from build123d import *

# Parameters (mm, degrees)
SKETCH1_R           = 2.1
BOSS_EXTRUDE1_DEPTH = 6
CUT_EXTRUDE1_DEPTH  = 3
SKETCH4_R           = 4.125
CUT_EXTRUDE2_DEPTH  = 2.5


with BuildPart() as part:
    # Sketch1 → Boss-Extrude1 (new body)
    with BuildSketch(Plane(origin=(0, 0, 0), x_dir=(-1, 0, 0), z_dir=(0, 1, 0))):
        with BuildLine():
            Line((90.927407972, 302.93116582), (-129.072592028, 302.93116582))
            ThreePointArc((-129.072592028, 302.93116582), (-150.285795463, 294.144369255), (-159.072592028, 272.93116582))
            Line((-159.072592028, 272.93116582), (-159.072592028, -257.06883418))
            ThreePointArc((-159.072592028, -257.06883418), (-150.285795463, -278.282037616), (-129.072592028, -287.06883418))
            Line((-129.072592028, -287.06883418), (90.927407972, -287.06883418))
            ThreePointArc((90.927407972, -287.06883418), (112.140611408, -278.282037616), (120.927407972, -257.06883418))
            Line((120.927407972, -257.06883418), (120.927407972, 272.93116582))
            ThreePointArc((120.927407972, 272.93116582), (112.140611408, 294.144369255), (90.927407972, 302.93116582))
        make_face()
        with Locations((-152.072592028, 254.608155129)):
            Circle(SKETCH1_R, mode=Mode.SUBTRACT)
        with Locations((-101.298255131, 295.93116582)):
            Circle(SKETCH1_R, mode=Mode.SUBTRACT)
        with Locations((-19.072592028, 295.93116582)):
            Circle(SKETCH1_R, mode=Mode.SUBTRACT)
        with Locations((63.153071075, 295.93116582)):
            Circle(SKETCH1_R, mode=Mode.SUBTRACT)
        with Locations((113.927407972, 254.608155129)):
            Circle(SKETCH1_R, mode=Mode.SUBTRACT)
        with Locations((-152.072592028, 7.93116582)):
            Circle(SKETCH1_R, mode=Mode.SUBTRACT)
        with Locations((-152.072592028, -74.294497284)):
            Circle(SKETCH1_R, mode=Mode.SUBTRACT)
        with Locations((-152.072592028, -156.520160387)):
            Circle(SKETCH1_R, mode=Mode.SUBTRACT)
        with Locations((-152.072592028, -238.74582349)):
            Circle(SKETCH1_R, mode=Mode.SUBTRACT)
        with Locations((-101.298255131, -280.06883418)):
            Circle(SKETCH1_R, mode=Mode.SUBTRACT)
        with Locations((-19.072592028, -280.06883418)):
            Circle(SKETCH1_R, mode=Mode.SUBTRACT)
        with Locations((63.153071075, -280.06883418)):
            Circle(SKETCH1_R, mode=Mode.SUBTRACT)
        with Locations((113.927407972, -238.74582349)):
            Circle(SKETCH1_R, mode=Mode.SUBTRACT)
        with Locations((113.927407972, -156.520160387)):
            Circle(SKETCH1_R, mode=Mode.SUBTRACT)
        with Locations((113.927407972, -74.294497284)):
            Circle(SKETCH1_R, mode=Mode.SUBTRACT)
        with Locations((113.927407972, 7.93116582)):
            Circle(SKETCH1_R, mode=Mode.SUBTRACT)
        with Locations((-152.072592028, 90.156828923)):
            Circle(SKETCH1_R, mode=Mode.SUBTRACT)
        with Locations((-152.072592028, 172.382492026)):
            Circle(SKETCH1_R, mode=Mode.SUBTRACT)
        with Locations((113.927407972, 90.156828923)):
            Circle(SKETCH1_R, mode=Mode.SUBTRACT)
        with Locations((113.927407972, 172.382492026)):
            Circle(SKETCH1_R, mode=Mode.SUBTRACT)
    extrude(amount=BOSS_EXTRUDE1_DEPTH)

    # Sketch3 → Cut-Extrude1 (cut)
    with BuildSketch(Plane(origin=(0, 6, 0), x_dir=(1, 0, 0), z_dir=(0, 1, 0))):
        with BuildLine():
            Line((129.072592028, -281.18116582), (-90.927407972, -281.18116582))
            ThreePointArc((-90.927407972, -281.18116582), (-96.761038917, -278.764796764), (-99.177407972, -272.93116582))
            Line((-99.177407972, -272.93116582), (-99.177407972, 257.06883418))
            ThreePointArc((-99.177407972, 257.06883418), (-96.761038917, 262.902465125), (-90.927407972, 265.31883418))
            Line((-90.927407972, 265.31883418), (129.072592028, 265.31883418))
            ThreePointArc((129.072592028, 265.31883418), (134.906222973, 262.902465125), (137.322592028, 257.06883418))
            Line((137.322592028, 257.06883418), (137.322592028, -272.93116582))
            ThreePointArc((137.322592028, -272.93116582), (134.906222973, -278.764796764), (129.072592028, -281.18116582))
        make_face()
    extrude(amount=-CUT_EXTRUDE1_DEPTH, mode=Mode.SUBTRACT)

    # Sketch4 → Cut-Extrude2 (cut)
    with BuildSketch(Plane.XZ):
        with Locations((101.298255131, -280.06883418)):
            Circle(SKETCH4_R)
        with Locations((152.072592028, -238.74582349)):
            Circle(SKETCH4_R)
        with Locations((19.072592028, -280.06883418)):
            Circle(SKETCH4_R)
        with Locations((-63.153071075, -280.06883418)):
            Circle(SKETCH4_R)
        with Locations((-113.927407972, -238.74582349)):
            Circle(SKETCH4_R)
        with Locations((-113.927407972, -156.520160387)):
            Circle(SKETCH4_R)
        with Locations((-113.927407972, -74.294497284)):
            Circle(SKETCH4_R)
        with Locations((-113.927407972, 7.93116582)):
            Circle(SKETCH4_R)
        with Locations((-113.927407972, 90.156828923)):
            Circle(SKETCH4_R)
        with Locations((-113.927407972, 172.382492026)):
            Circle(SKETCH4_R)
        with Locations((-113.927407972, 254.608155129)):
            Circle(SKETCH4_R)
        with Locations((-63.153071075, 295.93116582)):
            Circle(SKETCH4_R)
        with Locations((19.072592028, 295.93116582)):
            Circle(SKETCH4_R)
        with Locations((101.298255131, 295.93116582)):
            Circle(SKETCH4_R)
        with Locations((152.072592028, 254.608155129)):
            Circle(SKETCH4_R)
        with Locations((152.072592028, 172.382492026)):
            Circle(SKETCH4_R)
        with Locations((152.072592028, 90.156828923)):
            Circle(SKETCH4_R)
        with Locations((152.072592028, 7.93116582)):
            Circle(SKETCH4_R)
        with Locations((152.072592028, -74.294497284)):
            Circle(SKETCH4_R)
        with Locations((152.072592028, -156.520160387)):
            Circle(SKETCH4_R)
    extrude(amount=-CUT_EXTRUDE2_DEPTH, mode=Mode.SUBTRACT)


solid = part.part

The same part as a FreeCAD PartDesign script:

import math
import FreeCAD as App
import Part
import Sketcher
Q = App.Units.Quantity

doc = App.newDocument("Part")
params = doc.addObject("Spreadsheet::Sheet", "Params")
for row, (alias, value) in enumerate([
    ("sketch1_radius", "30 mm"),
    ("sketch1_diameter", "4.2 mm"),
    ("sketch1_width", "220 mm"),
    ("sketch1_height", "530 mm"),
    ("pad1_length", "6 mm"),
    ("sketch2_width", "220 mm"),
    ("sketch2_height", "530 mm"),
    ("sketch2_radius", "8.25 mm"),
    ("pocket1_length", "3 mm"),
    ("sketch3_diameter", "8.25 mm"),
    ("pocket2_length", "2.5 mm"),
], start=1):
    params.set(f"A{row}", alias)
    params.set(f"B{row}", "=" + value)
    params.setAlias(f"B{row}", alias)

body = doc.addObject("PartDesign::Body", "Body")

# Sketch on XZ plane
sketch1 = body.newObject("Sketcher::SketchObject", "Sketch")
sketch1.AttachmentSupport = (doc.getObject("XZ_Plane"), [""])
sketch1.MapMode = "FlatFace"
sketch1.addGeometry([
    Part.LineSegment(App.Vector(-90.9, 302.9, 0), App.Vector(129.1, 302.9, 0)),  # 0
    Part.ArcOfCircle(Part.Circle(App.Vector(129.1, 272.9, 0), App.Vector(0, 0, 1), 30), math.radians(0), math.radians(90)),  # 1
    Part.LineSegment(App.Vector(159.1, 272.9, 0), App.Vector(159.1, -257.1, 0)),  # 2
    Part.ArcOfCircle(Part.Circle(App.Vector(129.1, -257.1, 0), App.Vector(0, 0, 1), 30), math.radians(-90), math.radians(0)),  # 3
    Part.LineSegment(App.Vector(129.1, -287.1, 0), App.Vector(-90.9, -287.1, 0)),  # 4
    Part.ArcOfCircle(Part.Circle(App.Vector(-90.9, -257.1, 0), App.Vector(0, 0, 1), 30), math.radians(180), math.radians(270)),  # 5
    Part.LineSegment(App.Vector(-120.9, -257.1, 0), App.Vector(-120.9, 272.9, 0)),  # 6
    Part.ArcOfCircle(Part.Circle(App.Vector(-90.9, 272.9, 0), App.Vector(0, 0, 1), 30), math.radians(90), math.radians(180)),  # 7
    Part.Circle(App.Vector(152.1, -238.7, 0), App.Vector(0, 0, 1), 2.1),  # 8
    Part.Circle(App.Vector(101.3, -280.1, 0), App.Vector(0, 0, 1), 2.1),  # 9
    Part.Circle(App.Vector(152.1, -156.5, 0), App.Vector(0, 0, 1), 2.1),  # 10
    Part.Circle(App.Vector(152.1, -74.3, 0), App.Vector(0, 0, 1), 2.1),  # 11
    Part.Circle(App.Vector(19.1, -280.1, 0), App.Vector(0, 0, 1), 2.1),  # 12
    Part.Circle(App.Vector(-63.2, -280.1, 0), App.Vector(0, 0, 1), 2.1),  # 13
    Part.Circle(App.Vector(-113.9, -238.7, 0), App.Vector(0, 0, 1), 2.1),  # 14
    Part.Circle(App.Vector(-113.9, -156.5, 0), App.Vector(0, 0, 1), 2.1),  # 15
    Part.Circle(App.Vector(-113.9, -74.3, 0), App.Vector(0, 0, 1), 2.1),  # 16
    Part.Circle(App.Vector(152.1, 7.9, 0), App.Vector(0, 0, 1), 2.1),  # 17
    Part.Circle(App.Vector(152.1, 90.2, 0), App.Vector(0, 0, 1), 2.1),  # 18
    Part.Circle(App.Vector(152.1, 172.4, 0), App.Vector(0, 0, 1), 2.1),  # 19
    Part.Circle(App.Vector(152.1, 254.6, 0), App.Vector(0, 0, 1), 2.1),  # 20
    Part.Circle(App.Vector(101.3, 295.9, 0), App.Vector(0, 0, 1), 2.1),  # 21
    Part.Circle(App.Vector(-113.9, 7.9, 0), App.Vector(0, 0, 1), 2.1),  # 22
    Part.Circle(App.Vector(-113.9, 90.2, 0), App.Vector(0, 0, 1), 2.1),  # 23
    Part.Circle(App.Vector(19.1, 295.9, 0), App.Vector(0, 0, 1), 2.1),  # 24
    Part.Circle(App.Vector(-113.9, 172.4, 0), App.Vector(0, 0, 1), 2.1),  # 25
    Part.Circle(App.Vector(-63.2, 295.9, 0), App.Vector(0, 0, 1), 2.1),  # 26
    Part.Circle(App.Vector(-113.9, 254.6, 0), App.Vector(0, 0, 1), 2.1),  # 27
], False)
sketch1.addConstraint([
    Sketcher.Constraint("Tangent", 0, 2, 1, 2),
    Sketcher.Constraint("Tangent", 1, 1, 2, 1),
    Sketcher.Constraint("Tangent", 2, 2, 3, 2),
    Sketcher.Constraint("Tangent", 3, 1, 4, 1),
    Sketcher.Constraint("Tangent", 4, 2, 5, 2),
    Sketcher.Constraint("Tangent", 5, 1, 6, 1),
    Sketcher.Constraint("Tangent", 6, 2, 7, 2),
    Sketcher.Constraint("Tangent", 7, 1, 0, 1),
    Sketcher.Constraint("Horizontal", 0),
    Sketcher.Constraint("Vertical", 2),
    Sketcher.Constraint("Horizontal", 4),
    Sketcher.Constraint("Vertical", 6),
    Sketcher.Constraint("Equal", 1, 3),
    Sketcher.Constraint("Equal", 3, 5),
    Sketcher.Constraint("Equal", 5, 7),
    Sketcher.Constraint("Equal", 8, 9),
    Sketcher.Constraint("Equal", 9, 10),
    Sketcher.Constraint("Equal", 10, 11),
    Sketcher.Constraint("Equal", 11, 12),
    Sketcher.Constraint("Equal", 12, 13),
    Sketcher.Constraint("Equal", 13, 14),
    Sketcher.Constraint("Equal", 14, 15),
    Sketcher.Constraint("Equal", 15, 16),
    Sketcher.Constraint("Equal", 16, 17),
    Sketcher.Constraint("Equal", 17, 18),
    Sketcher.Constraint("Equal", 18, 19),
    Sketcher.Constraint("Equal", 19, 20),
    Sketcher.Constraint("Equal", 20, 21),
    Sketcher.Constraint("Equal", 21, 22),
    Sketcher.Constraint("Equal", 22, 23),
    Sketcher.Constraint("Equal", 23, 24),
    Sketcher.Constraint("Equal", 24, 25),
    Sketcher.Constraint("Equal", 25, 26),
    Sketcher.Constraint("Equal", 26, 27),
    Sketcher.Constraint("Horizontal", 9, 3, 12, 3),
    Sketcher.Constraint("Horizontal", 12, 3, 13, 3),
    Sketcher.Constraint("Horizontal", 8, 3, 14, 3),
    Sketcher.Constraint("Horizontal", 10, 3, 15, 3),
    Sketcher.Constraint("Horizontal", 11, 3, 16, 3),
    Sketcher.Constraint("Horizontal", 17, 3, 22, 3),
    Sketcher.Constraint("Horizontal", 18, 3, 23, 3),
    Sketcher.Constraint("Horizontal", 21, 3, 24, 3),
    Sketcher.Constraint("Horizontal", 19, 3, 25, 3),
    Sketcher.Constraint("Horizontal", 24, 3, 26, 3),
    Sketcher.Constraint("Horizontal", 20, 3, 27, 3),
    Sketcher.Constraint("Vertical", 8, 3, 10, 3),
    Sketcher.Constraint("Vertical", 10, 3, 11, 3),
    Sketcher.Constraint("Vertical", 14, 3, 15, 3),
    Sketcher.Constraint("Vertical", 15, 3, 16, 3),
    Sketcher.Constraint("Vertical", 11, 3, 17, 3),
    Sketcher.Constraint("Vertical", 17, 3, 18, 3),
    Sketcher.Constraint("Vertical", 18, 3, 19, 3),
    Sketcher.Constraint("Vertical", 19, 3, 20, 3),
    Sketcher.Constraint("Vertical", 9, 3, 21, 3),
    Sketcher.Constraint("Vertical", 16, 3, 22, 3),
    Sketcher.Constraint("Vertical", 22, 3, 23, 3),
    Sketcher.Constraint("Vertical", 12, 3, 24, 3),
    Sketcher.Constraint("Vertical", 23, 3, 25, 3),
    Sketcher.Constraint("Vertical", 13, 3, 26, 3),
    Sketcher.Constraint("Vertical", 25, 3, 27, 3),
    Sketcher.Constraint("Radius", 1, Q("30 mm")),
    Sketcher.Constraint("Diameter", 8, Q("4.2 mm")),
    Sketcher.Constraint("DistanceX", 0, 1, 0, 2, Q("220 mm")),
    Sketcher.Constraint("DistanceY", 2, 2, 2, 1, Q("530 mm")),
    Sketcher.Constraint("DistanceX", 3, 3, 8, 3, Q("23 mm")),
    Sketcher.Constraint("DistanceY", 9, 3, 3, 3, Q("23 mm")),
    Sketcher.Constraint("DistanceX", 12, 3, 3, 3, Q("110 mm")),
    Sketcher.Constraint("DistanceX", 14, 3, 5, 3, Q("23 mm")),
    Sketcher.Constraint("DistanceY", 17, 3, 1, 3, Q("265 mm")),
    Sketcher.Constraint("DistanceY", 1, 3, 21, 3, Q("23 mm")),
    Sketcher.Constraint("DistanceY", 10, 3, -1, 1, Q("156.52016 mm")),
    Sketcher.Constraint("DistanceX", 13, 3, -1, 1, Q("63.153071 mm")),
    Sketcher.Constraint("DistanceY", -1, 1, 18, 3, Q("90.156829 mm")),
    Sketcher.Constraint("DistanceY", 3, 3, 8, 3, Q("18.323011 mm")),
    Sketcher.Constraint("DistanceY", 11, 3, 19, 3, Q("246.676989 mm")),
    Sketcher.Constraint("DistanceY", 20, 3, 1, 3, Q("18.323011 mm")),
    Sketcher.Constraint("DistanceX", -1, 1, 1, 3, Q("129.072592 mm")),
    Sketcher.Constraint("DistanceY", -1, 1, 1, 3, Q("272.931166 mm")),
    Sketcher.Constraint("DistanceX", -1, 1, 9, 3, Q("101.298255 mm")),
    Sketcher.Constraint("DistanceY", 11, 3, -1, 1, Q("74.294497 mm")),
])
sketch1.setExpression("Constraints[60]", "Params.sketch1_radius")
sketch1.setExpression("Constraints[61]", "Params.sketch1_diameter")
sketch1.setExpression("Constraints[62]", "Params.sketch1_width")
sketch1.setExpression("Constraints[63]", "Params.sketch1_height")
pad1 = body.newObject("PartDesign::Pad", "Pad")
pad1.Profile = sketch1
pad1.setExpression("Length", "Params.pad1_length")
pad1.Reversed = True

# Sketch on XZ plane
sketch2 = body.newObject("Sketcher::SketchObject", "Sketch001")
sketch2.AttachmentSupport = (doc.getObject("XZ_Plane"), [""])
sketch2.MapMode = "FlatFace"
sketch2.AttachmentOffset = App.Placement(App.Vector(0, 0, -6), App.Rotation())
sketch2.addGeometry([
    Part.LineSegment(App.Vector(-91, 281, 0), App.Vector(129, 281, 0)),  # 0
    Part.ArcOfCircle(Part.Circle(App.Vector(129, 273, 0), App.Vector(0, 0, 1), 8), math.radians(0), math.radians(90)),  # 1
    Part.LineSegment(App.Vector(137, 273, 0), App.Vector(137, -257, 0)),  # 2
    Part.ArcOfCircle(Part.Circle(App.Vector(129, -257, 0), App.Vector(0, 0, 1), 8), math.radians(-90), math.radians(0)),  # 3
    Part.LineSegment(App.Vector(129, -265, 0), App.Vector(-91, -265, 0)),  # 4
    Part.ArcOfCircle(Part.Circle(App.Vector(-91, -257, 0), App.Vector(0, 0, 1), 8), math.radians(180), math.radians(270)),  # 5
    Part.LineSegment(App.Vector(-99, -257, 0), App.Vector(-99, 273, 0)),  # 6
    Part.ArcOfCircle(Part.Circle(App.Vector(-91, 273, 0), App.Vector(0, 0, 1), 8), math.radians(90), math.radians(180)),  # 7
], False)
sketch2.addConstraint([
    Sketcher.Constraint("Tangent", 0, 2, 1, 2),
    Sketcher.Constraint("Tangent", 1, 1, 2, 1),
    Sketcher.Constraint("Tangent", 2, 2, 3, 2),
    Sketcher.Constraint("Tangent", 3, 1, 4, 1),
    Sketcher.Constraint("Tangent", 4, 2, 5, 2),
    Sketcher.Constraint("Tangent", 5, 1, 6, 1),
    Sketcher.Constraint("Tangent", 6, 2, 7, 2),
    Sketcher.Constraint("Tangent", 7, 1, 0, 1),
    Sketcher.Constraint("Horizontal", 0),
    Sketcher.Constraint("Vertical", 2),
    Sketcher.Constraint("Horizontal", 4),
    Sketcher.Constraint("Vertical", 6),
    Sketcher.Constraint("Equal", 1, 3),
    Sketcher.Constraint("Equal", 3, 5),
    Sketcher.Constraint("Equal", 5, 7),
    Sketcher.Constraint("DistanceX", 0, 1, 0, 2, Q("220 mm")),
    Sketcher.Constraint("DistanceY", 2, 2, 2, 1, Q("530 mm")),
    Sketcher.Constraint("Radius", 1, Q("8.25 mm")),
    Sketcher.Constraint("DistanceX", -1, 1, 1, 3, Q("129.072592 mm")),
    Sketcher.Constraint("DistanceY", -1, 1, 1, 3, Q("272.931166 mm")),
])
sketch2.setExpression("Constraints[15]", "Params.sketch2_width")
sketch2.setExpression("Constraints[16]", "Params.sketch2_height")
sketch2.setExpression("Constraints[17]", "Params.sketch2_radius")
pocket1 = body.newObject("PartDesign::Pocket", "Pocket")
pocket1.Profile = sketch2
pocket1.setExpression("Length", "Params.pocket1_length")
pocket1.Reversed = True

# Sketch on XZ plane
sketch3 = body.newObject("Sketcher::SketchObject", "Sketch002")
sketch3.AttachmentSupport = (doc.getObject("XZ_Plane"), [""])
sketch3.MapMode = "FlatFace"
sketch3.addGeometry([
    Part.Circle(App.Vector(101.3, -280.1, 0), App.Vector(0, 0, 1), 4.1),  # 0
    Part.Circle(App.Vector(152.1, -238.7, 0), App.Vector(0, 0, 1), 4.1),  # 1
    Part.Circle(App.Vector(19.1, -280.1, 0), App.Vector(0, 0, 1), 4.1),  # 2
    Part.Circle(App.Vector(-63.2, -280.1, 0), App.Vector(0, 0, 1), 4.1),  # 3
    Part.Circle(App.Vector(-113.9, -238.7, 0), App.Vector(0, 0, 1), 4.1),  # 4
    Part.Circle(App.Vector(-113.9, -156.5, 0), App.Vector(0, 0, 1), 4.1),  # 5
    Part.Circle(App.Vector(-113.9, -74.3, 0), App.Vector(0, 0, 1), 4.1),  # 6
    Part.Circle(App.Vector(-113.9, 7.9, 0), App.Vector(0, 0, 1), 4.1),  # 7
    Part.Circle(App.Vector(-113.9, 90.2, 0), App.Vector(0, 0, 1), 4.1),  # 8
    Part.Circle(App.Vector(-113.9, 172.4, 0), App.Vector(0, 0, 1), 4.1),  # 9
    Part.Circle(App.Vector(-113.9, 254.6, 0), App.Vector(0, 0, 1), 4.1),  # 10
    Part.Circle(App.Vector(-63.2, 295.9, 0), App.Vector(0, 0, 1), 4.1),  # 11
    Part.Circle(App.Vector(19.1, 295.9, 0), App.Vector(0, 0, 1), 4.1),  # 12
    Part.Circle(App.Vector(101.3, 295.9, 0), App.Vector(0, 0, 1), 4.1),  # 13
    Part.Circle(App.Vector(152.1, 254.6, 0), App.Vector(0, 0, 1), 4.1),  # 14
    Part.Circle(App.Vector(152.1, 172.4, 0), App.Vector(0, 0, 1), 4.1),  # 15
    Part.Circle(App.Vector(152.1, 90.2, 0), App.Vector(0, 0, 1), 4.1),  # 16
    Part.Circle(App.Vector(152.1, 7.9, 0), App.Vector(0, 0, 1), 4.1),  # 17
    Part.Circle(App.Vector(152.1, -74.3, 0), App.Vector(0, 0, 1), 4.1),  # 18
    Part.Circle(App.Vector(152.1, -156.5, 0), App.Vector(0, 0, 1), 4.1),  # 19
], False)
sketch3.addConstraint([
    Sketcher.Constraint("Equal", 0, 1),
    Sketcher.Constraint("Equal", 1, 2),
    Sketcher.Constraint("Equal", 2, 3),
    Sketcher.Constraint("Equal", 3, 4),
    Sketcher.Constraint("Equal", 4, 5),
    Sketcher.Constraint("Equal", 5, 6),
    Sketcher.Constraint("Equal", 6, 7),
    Sketcher.Constraint("Equal", 7, 8),
    Sketcher.Constraint("Equal", 8, 9),
    Sketcher.Constraint("Equal", 9, 10),
    Sketcher.Constraint("Equal", 10, 11),
    Sketcher.Constraint("Equal", 11, 12),
    Sketcher.Constraint("Equal", 12, 13),
    Sketcher.Constraint("Equal", 13, 14),
    Sketcher.Constraint("Equal", 14, 15),
    Sketcher.Constraint("Equal", 15, 16),
    Sketcher.Constraint("Equal", 16, 17),
    Sketcher.Constraint("Equal", 17, 18),
    Sketcher.Constraint("Equal", 18, 19),
    Sketcher.Constraint("Horizontal", 0, 3, 2, 3),
    Sketcher.Constraint("Horizontal", 2, 3, 3, 3),
    Sketcher.Constraint("Horizontal", 1, 3, 4, 3),
    Sketcher.Constraint("Horizontal", 11, 3, 12, 3),
    Sketcher.Constraint("Horizontal", 12, 3, 13, 3),
    Sketcher.Constraint("Horizontal", 10, 3, 14, 3),
    Sketcher.Constraint("Horizontal", 9, 3, 15, 3),
    Sketcher.Constraint("Horizontal", 8, 3, 16, 3),
    Sketcher.Constraint("Horizontal", 7, 3, 17, 3),
    Sketcher.Constraint("Horizontal", 6, 3, 18, 3),
    Sketcher.Constraint("Horizontal", 5, 3, 19, 3),
    Sketcher.Constraint("Vertical", 4, 3, 5, 3),
    Sketcher.Constraint("Vertical", 5, 3, 6, 3),
    Sketcher.Constraint("Vertical", 6, 3, 7, 3),
    Sketcher.Constraint("Vertical", 7, 3, 8, 3),
    Sketcher.Constraint("Vertical", 8, 3, 9, 3),
    Sketcher.Constraint("Vertical", 9, 3, 10, 3),
    Sketcher.Constraint("Vertical", 3, 3, 11, 3),
    Sketcher.Constraint("Vertical", 2, 3, 12, 3),
    Sketcher.Constraint("Vertical", 0, 3, 13, 3),
    Sketcher.Constraint("Vertical", 1, 3, 14, 3),
    Sketcher.Constraint("Vertical", 14, 3, 15, 3),
    Sketcher.Constraint("Vertical", 15, 3, 16, 3),
    Sketcher.Constraint("Vertical", 16, 3, 17, 3),
    Sketcher.Constraint("Vertical", 17, 3, 18, 3),
    Sketcher.Constraint("Vertical", 18, 3, 19, 3),
    Sketcher.Constraint("Diameter", 0, Q("8.25 mm")),
    Sketcher.Constraint("DistanceX", 2, 3, 1, 3, Q("133 mm")),
    Sketcher.Constraint("DistanceX", 4, 3, 2, 3, Q("133 mm")),
    Sketcher.Constraint("DistanceY", 3, 3, 7, 3, Q("288 mm")),
    Sketcher.Constraint("DistanceY", 7, 3, 11, 3, Q("288 mm")),
    Sketcher.Constraint("DistanceX", 3, 3, -1, 1, Q("63.153071 mm")),
    Sketcher.Constraint("DistanceY", 5, 3, -1, 1, Q("156.52016 mm")),
    Sketcher.Constraint("DistanceY", -1, 1, 8, 3, Q("90.156829 mm")),
    Sketcher.Constraint("DistanceY", 0, 3, 1, 3, Q("41.323011 mm")),
    Sketcher.Constraint("DistanceY", 6, 3, 9, 3, Q("246.676989 mm")),
    Sketcher.Constraint("DistanceY", 7, 3, 10, 3, Q("246.676989 mm")),
    Sketcher.Constraint("DistanceX", -1, 1, 0, 3, Q("101.298255 mm")),
    Sketcher.Constraint("DistanceY", 0, 3, -1, 1, Q("280.068834 mm")),
    Sketcher.Constraint("DistanceX", -1, 1, 1, 3, Q("152.072592 mm")),
    Sketcher.Constraint("DistanceY", 6, 3, -1, 1, Q("74.294497 mm")),
])
sketch3.setExpression("Constraints[45]", "Params.sketch3_diameter")
pocket2 = body.newObject("PartDesign::Pocket", "Pocket001")
pocket2.Profile = sketch3
pocket2.setExpression("Length", "Params.pocket2_length")

doc.recompute()
